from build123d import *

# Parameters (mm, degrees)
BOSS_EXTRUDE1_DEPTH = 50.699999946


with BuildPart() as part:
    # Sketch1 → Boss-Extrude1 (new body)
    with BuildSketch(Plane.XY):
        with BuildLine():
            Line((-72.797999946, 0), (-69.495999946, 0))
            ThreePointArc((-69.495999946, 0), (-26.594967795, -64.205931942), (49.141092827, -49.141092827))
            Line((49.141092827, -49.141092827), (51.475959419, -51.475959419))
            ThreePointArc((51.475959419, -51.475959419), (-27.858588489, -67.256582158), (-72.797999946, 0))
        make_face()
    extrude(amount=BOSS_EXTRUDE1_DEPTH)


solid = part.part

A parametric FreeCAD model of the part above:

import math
import FreeCAD as App
import Part
import Sketcher

V = App.Vector
Q = App.Units.Quantity

doc = App.newDocument("Part")
body = doc.addObject("PartDesign::Body", "Body")

sketch1 = body.newObject("Sketcher::SketchObject", "Sketch")
sketch1.AttachmentSupport = (doc.getObject("XY_Plane"), [""])
sketch1.MapMode = "FlatFace"
sketch1.addGeometry(Part.LineSegment(V(-69.496, 0, 0), V(-72.798, 0, 0)), False)
sketch1.addGeometry(Part.ArcOfCircle(Part.Circle(V(0, 0, 0), V(0, 0, 1), 72.798), math.radians(180), math.radians(315)), False)
sketch1.addGeometry(Part.LineSegment(V(51.475959, -51.475959, 0), V(49.141093, -49.141093, 0)), False)
sketch1.addGeometry(Part.ArcOfCircle(Part.Circle(V(0, 0, 0), V(0, 0, 1), 69.496), math.radians(180), math.radians(315)), False)
sketch1.addConstraint(Sketcher.Constraint("Coincident", 0, 2, 1, 1))
sketch1.addConstraint(Sketcher.Constraint("Coincident", 1, 2, 2, 1))
sketch1.addConstraint(Sketcher.Constraint("Coincident", 2, 2, 3, 2))
sketch1.addConstraint(Sketcher.Constraint("Coincident", 3, 1, 0, 1))
sketch1.addConstraint(Sketcher.Constraint("Horizontal", 0))
sketch1.addConstraint(Sketcher.Constraint("Coincident", 1, 3, -1, 1))
sketch1.addConstraint(Sketcher.Constraint("Coincident", 3, 3, -1, 1))
sketch1.addConstraint(Sketcher.Constraint("PointOnObject", 0, 2, -1))
sketch1.addConstraint(Sketcher.Constraint("Angle", 2, Q("135 deg")))
sketch1.addConstraint(Sketcher.Constraint("Radius", 1, Q("72.798 mm")))
sketch1.addConstraint(Sketcher.Constraint("Radius", 3, Q("69.496 mm")))
sketch1.addConstraint(Sketcher.Constraint("DistanceX", -1, 1, 1, 2, Q("51.475959 mm")))
pad1 = body.newObject("PartDesign::Pad", "Pad")
pad1.Profile = sketch1
pad1.Length = 50.7

doc.recompute()
